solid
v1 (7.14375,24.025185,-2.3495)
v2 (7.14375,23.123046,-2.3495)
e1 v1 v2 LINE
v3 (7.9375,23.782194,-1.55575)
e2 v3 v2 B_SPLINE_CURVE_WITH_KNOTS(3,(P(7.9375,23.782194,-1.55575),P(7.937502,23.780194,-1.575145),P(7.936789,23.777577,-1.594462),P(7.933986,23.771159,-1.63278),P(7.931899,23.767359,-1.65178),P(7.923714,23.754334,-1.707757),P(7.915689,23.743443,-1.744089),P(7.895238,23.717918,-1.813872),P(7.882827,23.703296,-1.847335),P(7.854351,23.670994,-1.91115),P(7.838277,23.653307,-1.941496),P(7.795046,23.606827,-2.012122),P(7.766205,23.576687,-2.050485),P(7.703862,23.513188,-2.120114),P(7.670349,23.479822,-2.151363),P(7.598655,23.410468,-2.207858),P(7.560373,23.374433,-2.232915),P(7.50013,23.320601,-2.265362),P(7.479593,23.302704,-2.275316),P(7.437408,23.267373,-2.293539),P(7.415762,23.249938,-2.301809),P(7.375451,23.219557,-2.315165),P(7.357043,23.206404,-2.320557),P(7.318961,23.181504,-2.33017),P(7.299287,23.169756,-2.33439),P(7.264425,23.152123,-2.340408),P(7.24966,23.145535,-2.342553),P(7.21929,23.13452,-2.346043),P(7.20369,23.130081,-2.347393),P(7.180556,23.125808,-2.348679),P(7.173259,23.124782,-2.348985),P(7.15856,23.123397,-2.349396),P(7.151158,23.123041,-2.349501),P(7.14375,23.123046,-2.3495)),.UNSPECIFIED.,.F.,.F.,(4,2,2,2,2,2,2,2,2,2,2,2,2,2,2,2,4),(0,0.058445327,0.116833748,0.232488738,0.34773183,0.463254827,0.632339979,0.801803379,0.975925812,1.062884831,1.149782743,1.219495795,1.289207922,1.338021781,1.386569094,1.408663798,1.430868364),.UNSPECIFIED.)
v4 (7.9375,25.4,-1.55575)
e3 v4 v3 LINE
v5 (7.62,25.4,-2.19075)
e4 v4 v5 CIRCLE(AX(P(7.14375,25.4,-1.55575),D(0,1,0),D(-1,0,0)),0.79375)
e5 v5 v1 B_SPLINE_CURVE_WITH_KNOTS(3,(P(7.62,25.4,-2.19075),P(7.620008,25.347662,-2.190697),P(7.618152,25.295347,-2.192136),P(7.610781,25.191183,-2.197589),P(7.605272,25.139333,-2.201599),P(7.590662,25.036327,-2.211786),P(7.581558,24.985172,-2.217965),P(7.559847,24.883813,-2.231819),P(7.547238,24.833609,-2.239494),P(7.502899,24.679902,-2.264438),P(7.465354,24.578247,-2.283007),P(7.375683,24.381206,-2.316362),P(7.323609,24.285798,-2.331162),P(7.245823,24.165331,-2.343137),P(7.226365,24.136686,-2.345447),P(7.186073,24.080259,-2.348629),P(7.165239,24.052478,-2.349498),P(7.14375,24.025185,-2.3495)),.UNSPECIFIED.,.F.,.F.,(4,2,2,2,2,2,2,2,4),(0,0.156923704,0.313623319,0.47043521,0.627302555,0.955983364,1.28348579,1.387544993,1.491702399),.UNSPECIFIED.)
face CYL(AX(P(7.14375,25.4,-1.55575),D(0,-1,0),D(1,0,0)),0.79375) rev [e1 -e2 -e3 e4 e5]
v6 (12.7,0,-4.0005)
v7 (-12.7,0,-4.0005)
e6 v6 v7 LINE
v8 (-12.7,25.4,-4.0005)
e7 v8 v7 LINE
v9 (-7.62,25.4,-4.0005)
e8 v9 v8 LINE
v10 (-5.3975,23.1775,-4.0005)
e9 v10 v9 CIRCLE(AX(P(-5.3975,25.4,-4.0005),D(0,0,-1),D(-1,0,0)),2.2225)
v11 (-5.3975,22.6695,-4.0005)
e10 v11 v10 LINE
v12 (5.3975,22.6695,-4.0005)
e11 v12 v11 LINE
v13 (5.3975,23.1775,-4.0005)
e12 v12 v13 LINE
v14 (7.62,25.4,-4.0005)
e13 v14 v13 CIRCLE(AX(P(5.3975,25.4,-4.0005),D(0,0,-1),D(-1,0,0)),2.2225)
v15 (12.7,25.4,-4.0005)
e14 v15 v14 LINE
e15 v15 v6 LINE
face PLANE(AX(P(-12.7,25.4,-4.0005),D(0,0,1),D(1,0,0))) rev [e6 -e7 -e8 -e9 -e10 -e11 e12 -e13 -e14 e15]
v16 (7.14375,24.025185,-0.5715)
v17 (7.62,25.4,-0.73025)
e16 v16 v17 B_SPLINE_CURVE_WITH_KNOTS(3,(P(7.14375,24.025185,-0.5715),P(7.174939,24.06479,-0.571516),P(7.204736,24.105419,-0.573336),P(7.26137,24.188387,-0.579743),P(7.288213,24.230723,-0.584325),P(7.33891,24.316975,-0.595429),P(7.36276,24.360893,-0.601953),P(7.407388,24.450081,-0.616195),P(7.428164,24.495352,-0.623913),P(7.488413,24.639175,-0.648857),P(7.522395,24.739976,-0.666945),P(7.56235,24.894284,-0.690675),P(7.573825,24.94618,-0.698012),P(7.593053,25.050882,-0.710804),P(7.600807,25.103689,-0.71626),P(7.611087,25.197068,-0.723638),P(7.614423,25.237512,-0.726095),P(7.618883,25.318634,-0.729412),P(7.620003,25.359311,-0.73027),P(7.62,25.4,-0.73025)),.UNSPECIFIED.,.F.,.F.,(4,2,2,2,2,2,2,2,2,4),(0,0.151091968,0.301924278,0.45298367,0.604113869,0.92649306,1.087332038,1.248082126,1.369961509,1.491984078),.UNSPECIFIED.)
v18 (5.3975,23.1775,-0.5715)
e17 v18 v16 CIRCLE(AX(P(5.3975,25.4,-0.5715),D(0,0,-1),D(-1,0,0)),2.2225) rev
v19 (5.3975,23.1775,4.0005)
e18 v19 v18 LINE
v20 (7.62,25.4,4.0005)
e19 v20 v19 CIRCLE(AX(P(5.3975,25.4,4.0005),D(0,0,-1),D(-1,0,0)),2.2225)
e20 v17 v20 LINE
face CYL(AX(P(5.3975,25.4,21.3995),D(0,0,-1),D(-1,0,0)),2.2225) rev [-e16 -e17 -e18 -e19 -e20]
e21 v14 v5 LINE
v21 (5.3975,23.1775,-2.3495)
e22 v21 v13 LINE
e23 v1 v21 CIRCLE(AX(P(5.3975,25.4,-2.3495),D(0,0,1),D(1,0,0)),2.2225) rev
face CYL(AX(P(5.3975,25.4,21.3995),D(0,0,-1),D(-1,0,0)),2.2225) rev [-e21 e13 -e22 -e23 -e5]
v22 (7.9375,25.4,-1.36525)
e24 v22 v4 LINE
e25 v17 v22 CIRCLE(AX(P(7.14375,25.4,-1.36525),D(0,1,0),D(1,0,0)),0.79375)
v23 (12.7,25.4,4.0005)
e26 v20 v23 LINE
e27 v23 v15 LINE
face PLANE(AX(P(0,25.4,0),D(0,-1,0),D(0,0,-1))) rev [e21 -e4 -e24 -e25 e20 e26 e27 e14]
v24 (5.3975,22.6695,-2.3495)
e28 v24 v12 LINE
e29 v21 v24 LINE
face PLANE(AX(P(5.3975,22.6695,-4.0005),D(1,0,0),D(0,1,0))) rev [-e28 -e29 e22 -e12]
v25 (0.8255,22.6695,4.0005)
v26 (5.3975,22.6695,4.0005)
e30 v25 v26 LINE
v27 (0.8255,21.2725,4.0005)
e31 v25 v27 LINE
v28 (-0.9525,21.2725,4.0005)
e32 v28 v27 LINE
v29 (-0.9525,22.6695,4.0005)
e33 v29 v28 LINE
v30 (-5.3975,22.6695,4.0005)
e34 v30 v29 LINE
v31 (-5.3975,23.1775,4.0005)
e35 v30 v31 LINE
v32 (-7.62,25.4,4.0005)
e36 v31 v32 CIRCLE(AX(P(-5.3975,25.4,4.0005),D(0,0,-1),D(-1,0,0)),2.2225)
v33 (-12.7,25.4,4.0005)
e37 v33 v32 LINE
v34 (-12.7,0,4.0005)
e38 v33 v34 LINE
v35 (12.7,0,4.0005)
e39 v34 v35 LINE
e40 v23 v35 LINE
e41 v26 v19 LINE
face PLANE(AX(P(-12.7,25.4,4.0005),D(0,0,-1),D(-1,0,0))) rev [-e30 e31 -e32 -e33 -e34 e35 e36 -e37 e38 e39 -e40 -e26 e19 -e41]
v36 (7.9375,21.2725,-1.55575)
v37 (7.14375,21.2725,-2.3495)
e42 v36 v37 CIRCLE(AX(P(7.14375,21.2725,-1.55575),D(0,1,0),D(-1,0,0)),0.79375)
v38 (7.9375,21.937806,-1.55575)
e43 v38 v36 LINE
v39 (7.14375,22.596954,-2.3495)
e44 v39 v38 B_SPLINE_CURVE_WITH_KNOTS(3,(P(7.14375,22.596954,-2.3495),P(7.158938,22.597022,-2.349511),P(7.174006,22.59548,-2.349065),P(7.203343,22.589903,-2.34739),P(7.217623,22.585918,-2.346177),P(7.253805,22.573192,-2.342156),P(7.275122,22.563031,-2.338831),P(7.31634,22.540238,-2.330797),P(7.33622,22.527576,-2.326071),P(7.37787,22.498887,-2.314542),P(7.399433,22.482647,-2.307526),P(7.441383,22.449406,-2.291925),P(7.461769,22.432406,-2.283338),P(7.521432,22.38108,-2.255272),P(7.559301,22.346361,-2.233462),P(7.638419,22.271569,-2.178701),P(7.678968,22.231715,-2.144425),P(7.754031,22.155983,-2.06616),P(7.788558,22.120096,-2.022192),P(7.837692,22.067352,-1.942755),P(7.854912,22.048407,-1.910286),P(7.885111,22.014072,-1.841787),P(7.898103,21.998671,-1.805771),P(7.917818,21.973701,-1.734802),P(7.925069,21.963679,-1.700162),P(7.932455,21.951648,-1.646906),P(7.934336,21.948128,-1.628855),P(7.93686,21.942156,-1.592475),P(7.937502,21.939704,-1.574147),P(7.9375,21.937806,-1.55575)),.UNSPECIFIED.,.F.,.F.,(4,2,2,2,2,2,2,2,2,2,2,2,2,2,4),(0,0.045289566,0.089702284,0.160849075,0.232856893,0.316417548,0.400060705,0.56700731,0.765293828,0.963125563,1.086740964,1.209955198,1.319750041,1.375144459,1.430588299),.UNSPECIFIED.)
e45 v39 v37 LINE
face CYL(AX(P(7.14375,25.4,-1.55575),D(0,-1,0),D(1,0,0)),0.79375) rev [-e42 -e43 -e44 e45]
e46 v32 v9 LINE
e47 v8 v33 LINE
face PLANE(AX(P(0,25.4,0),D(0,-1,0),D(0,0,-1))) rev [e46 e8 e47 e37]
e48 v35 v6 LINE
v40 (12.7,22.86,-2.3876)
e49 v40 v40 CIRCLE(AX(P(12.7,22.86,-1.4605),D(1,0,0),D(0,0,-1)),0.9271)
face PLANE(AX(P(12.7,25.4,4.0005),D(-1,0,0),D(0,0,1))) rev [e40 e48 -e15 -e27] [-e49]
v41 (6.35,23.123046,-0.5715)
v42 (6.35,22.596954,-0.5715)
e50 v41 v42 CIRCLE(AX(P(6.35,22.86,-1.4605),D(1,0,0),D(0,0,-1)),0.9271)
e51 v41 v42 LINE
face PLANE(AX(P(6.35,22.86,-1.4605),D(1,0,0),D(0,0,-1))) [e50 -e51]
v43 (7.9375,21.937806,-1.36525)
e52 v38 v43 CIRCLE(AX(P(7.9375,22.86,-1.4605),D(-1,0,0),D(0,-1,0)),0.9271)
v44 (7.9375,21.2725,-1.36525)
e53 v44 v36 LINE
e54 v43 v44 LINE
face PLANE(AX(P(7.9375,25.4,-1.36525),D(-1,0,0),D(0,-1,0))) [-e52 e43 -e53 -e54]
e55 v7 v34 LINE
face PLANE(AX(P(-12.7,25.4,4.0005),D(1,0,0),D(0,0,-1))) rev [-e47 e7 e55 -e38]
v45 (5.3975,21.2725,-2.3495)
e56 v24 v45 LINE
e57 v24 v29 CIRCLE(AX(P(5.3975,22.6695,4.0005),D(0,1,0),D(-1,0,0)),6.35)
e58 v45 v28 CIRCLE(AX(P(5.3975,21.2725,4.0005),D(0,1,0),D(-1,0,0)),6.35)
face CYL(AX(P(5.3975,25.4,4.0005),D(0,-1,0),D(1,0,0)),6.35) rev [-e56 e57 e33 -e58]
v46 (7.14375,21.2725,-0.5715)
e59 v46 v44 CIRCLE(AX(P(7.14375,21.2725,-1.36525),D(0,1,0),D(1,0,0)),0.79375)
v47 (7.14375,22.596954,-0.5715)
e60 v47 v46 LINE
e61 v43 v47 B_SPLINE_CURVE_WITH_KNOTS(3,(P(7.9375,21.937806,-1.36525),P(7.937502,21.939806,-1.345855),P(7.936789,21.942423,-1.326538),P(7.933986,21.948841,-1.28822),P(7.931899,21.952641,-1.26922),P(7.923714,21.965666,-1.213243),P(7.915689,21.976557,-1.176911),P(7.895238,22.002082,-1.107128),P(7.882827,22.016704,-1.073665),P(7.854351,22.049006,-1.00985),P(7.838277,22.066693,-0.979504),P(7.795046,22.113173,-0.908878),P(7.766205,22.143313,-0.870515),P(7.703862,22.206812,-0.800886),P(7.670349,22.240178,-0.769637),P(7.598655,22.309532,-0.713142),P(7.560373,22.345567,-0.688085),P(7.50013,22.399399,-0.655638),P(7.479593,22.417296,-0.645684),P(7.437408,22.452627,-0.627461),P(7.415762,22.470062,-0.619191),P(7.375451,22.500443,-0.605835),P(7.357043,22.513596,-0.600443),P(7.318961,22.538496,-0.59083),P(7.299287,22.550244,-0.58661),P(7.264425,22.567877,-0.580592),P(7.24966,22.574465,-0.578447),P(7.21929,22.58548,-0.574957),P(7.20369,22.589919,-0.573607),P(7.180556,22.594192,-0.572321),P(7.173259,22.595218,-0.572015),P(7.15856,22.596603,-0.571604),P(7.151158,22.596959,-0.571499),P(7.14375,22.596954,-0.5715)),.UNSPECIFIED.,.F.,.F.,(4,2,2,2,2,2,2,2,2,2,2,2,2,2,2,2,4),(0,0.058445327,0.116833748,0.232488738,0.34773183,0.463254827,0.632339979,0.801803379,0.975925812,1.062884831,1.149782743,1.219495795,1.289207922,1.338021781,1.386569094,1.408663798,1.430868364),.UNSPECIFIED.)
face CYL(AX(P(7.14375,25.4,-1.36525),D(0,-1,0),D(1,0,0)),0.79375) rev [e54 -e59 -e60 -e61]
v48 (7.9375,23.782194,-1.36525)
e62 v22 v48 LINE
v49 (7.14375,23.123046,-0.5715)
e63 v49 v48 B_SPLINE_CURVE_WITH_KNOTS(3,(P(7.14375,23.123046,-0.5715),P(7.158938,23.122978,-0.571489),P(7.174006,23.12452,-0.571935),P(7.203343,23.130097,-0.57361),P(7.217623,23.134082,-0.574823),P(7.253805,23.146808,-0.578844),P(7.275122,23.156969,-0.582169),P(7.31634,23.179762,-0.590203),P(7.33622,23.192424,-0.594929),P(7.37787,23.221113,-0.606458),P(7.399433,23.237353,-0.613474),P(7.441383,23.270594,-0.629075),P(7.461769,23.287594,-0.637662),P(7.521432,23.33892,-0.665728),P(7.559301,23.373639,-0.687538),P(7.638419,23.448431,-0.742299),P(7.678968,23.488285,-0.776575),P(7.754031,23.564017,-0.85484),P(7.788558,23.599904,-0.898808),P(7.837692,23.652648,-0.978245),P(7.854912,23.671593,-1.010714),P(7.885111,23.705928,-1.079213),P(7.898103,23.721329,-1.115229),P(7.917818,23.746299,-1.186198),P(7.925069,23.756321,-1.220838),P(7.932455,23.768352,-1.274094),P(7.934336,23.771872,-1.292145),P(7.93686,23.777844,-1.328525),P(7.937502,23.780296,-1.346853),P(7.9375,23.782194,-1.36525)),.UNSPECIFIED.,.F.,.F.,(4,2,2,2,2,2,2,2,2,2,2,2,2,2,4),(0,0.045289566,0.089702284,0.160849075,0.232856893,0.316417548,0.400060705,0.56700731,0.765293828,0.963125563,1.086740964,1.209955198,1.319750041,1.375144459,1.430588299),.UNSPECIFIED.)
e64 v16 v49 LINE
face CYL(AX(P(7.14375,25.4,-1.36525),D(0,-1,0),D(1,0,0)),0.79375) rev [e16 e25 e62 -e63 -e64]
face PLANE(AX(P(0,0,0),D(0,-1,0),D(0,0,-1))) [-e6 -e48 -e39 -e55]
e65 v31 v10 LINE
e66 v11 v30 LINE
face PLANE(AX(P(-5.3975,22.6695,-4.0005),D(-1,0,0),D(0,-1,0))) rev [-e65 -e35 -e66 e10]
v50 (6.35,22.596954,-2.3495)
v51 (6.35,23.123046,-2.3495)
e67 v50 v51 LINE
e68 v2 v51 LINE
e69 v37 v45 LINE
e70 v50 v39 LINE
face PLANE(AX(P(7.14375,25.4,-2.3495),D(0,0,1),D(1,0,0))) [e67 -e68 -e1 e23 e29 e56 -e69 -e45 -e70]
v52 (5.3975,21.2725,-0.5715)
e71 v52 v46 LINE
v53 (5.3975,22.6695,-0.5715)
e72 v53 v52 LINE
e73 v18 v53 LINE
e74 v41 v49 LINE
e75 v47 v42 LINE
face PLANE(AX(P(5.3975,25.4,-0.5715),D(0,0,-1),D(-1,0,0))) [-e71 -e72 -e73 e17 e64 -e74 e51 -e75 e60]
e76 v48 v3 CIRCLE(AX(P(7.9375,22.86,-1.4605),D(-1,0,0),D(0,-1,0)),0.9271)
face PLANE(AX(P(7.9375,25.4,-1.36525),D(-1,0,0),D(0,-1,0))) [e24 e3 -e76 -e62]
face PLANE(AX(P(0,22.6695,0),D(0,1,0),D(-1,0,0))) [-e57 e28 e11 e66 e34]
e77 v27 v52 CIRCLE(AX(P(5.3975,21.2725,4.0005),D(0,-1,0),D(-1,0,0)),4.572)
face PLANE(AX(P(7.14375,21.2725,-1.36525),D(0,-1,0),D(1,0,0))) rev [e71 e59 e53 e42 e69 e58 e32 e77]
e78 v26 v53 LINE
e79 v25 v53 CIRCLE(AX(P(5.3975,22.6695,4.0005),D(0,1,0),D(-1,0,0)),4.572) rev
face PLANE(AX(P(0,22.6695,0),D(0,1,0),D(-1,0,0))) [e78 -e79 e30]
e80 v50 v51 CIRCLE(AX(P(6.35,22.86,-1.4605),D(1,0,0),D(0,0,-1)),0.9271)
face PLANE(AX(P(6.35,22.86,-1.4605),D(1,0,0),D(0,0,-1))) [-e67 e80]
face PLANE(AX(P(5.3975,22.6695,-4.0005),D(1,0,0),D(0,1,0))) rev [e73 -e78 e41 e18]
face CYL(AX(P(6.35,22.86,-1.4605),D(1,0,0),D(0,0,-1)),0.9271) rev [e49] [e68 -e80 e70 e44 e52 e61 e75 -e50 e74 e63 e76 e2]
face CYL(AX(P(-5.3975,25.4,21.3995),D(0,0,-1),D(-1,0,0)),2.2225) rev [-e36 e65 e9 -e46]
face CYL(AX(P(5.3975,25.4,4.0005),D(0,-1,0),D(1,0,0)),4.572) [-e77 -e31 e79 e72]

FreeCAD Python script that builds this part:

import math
import FreeCAD as App
import Part
import Sketcher
from FreeCAD import Vector
Q = App.Units.Quantity


def add_polygon(sketch, points):
    """Adds a closed chain of lines whose ends are joined by coincident constraints."""
    first, n = sketch.GeometryCount, len(points)
    for a, b in zip(points, points[1:] + points[:1]):
        sketch.addGeometry(Part.LineSegment(App.Vector(*a, 0), App.Vector(*b, 0)), False)
    for i in range(n):
        sketch.addConstraint(Sketcher.Constraint("Coincident", first + i, 2, first + (i + 1) % n, 1))

doc = App.newDocument("Part")
params = doc.addObject("Spreadsheet::Sheet", "Params")
for row, (alias, value) in enumerate([
    ("sketch1_width", "1 in"),
    ("sketch1_height", "0.315 in"),
    ("pad1_length", "1 in"),
    ("sketch2_width", "0.425 in"),
    ("pocket1_length", "1 in"),
    ("sketch3_radius", "0.18 in"),
    ("sketch3_radius2", "0.25 in"),
    ("sketch3_radius3", "0.03125 in"),
    ("pocket2_length", "27.729955 mm"),
    ("pocket2_length2", "0.075 in"),
    ("sketch4_diameter", "0.073 in"),
    ("pocket3_length", "0.25 in"),
    ("sketch5_width", "0.425 in"),
    ("sketch5_height", "0.315 in"),
    ("pocket4_length", "0.02 in"),
], start=1):
    params.set(f"A{row}", alias)
    params.set(f"B{row}", "=" + value)
    params.setAlias(f"B{row}", alias)

body = doc.addObject("PartDesign::Body", "Body")

sketch1 = body.newObject("Sketcher::SketchObject", "Sketch")
sketch1.AttachmentSupport = (doc.getObject("XZ_Plane"), [""])
sketch1.MapMode = "FlatFace"
add_polygon(sketch1, [(-13, -4), (-13, 4), (13, 4), (13, -4)])
sketch1.addConstraint(Sketcher.Constraint("Vertical", 0))
sketch1.addConstraint(Sketcher.Constraint("Horizontal", 1))
sketch1.addConstraint(Sketcher.Constraint("Vertical", 2))
sketch1.addConstraint(Sketcher.Constraint("Horizontal", 3))
sketch1.addConstraint(Sketcher.Constraint("Symmetric", 0, 2, 2, 2, -1, 1))
sketch1.addConstraint(Sketcher.Constraint("DistanceX", 1, 1, 1, 2, Q("1 in")))
sketch1.addConstraint(Sketcher.Constraint("DistanceY", 0, 1, 0, 2, Q("0.315 in")))
sketch1.setExpression("Constraints[9]", "Params.sketch1_width")
sketch1.setExpression("Constraints[10]", "Params.sketch1_height")
pad1 = body.newObject("PartDesign::Pad", "Pad")
pad1.Profile = sketch1
pad1.setExpression("Length", "Params.pad1_length")
pad1.Reversed = True

sketch2 = body.newObject("Sketcher::SketchObject", "Sketch001")
sketch2.AttachmentSupport = (doc.getObject("XY_Plane"), [""])
sketch2.MapMode = "FlatFace"
sketch2.AttachmentOffset = App.Placement(Vector(0, 0, -0.1575 * 25.4), App.Rotation())
sketch2.addGeometry(Part.LineSegment(Vector(5.4, 23.2, 0), Vector(-5.4, 23.2, 0)), False)
sketch2.addGeometry(Part.ArcOfCircle(Part.Circle(Vector(-5.4, 25.4, 0), Vector(0, 0, 1), 2.2), math.radians(90), math.radians(270)), False)
sketch2.addGeometry(Part.LineSegment(Vector(-5.4, 27.6, 0), Vector(5.4, 27.6, 0)), False)
sketch2.addGeometry(Part.ArcOfCircle(Part.Circle(Vector(5.4, 25.4, 0), Vector(0, 0, 1), 2.2), math.radians(-90), math.radians(90)), False)
sketch2.addConstraint(Sketcher.Constraint("Tangent", 0, 2, 1, 2))
sketch2.addConstraint(Sketcher.Constraint("Tangent", 1, 1, 2, 1))
sketch2.addConstraint(Sketcher.Constraint("Tangent", 2, 2, 3, 2))
sketch2.addConstraint(Sketcher.Constraint("Tangent", 3, 1, 0, 1))
sketch2.addConstraint(Sketcher.Constraint("Horizontal", 0))
sketch2.addConstraint(Sketcher.Constraint("Horizontal", 2))
sketch2.addConstraint(Sketcher.Constraint("DistanceY", -1, 1, 1, 3, Q("1 in")))
sketch2.addConstraint(Sketcher.Constraint("Radius", 1, Q("0.0875 in")))
sketch2.addConstraint(Sketcher.Constraint("DistanceX", 0, 2, 0, 1, Q("0.425 in")))
sketch2.addConstraint(Sketcher.Constraint("DistanceX", 1, 3, -1, 1, Q("0.2125 in")))
sketch2.setExpression("Constraints[8]", "Params.sketch2_width")
pocket1 = body.newObject("PartDesign::Pocket", "Pocket")
pocket1.Profile = sketch2
pocket1.setExpression("Length", "Params.pocket1_length")
pocket1.Reversed = True

sketch3 = body.newObject("Sketcher::SketchObject", "Sketch002")
sketch3.AttachmentSupport = (doc.getObject("XZ_Plane"), [""])
sketch3.MapMode = "FlatFace"
sketch3.AttachmentOffset = App.Placement(Vector(0, 0, -0.9125 * 25.4), App.Rotation())
sketch3.addGeometry(Part.LineSegment(Vector(-0.95, 4, 0), Vector(0.83, 4, 0)), False)
sketch3.addGeometry(Part.ArcOfCircle(Part.Circle(Vector(5.4, 4, 0), Vector(0, 0, 1), 4.57), math.radians(180), math.radians(270)), False)
sketch3.addGeometry(Part.LineSegment(Vector(5.4, -0.57, 0), Vector(7.14, -0.57, 0)), False)
sketch3.addGeometry(Part.ArcOfCircle(Part.Circle(Vector(7.14, -1.37, 0), Vector(0, 0, 1), 0.79), math.radians(0), math.radians(90)), False)
sketch3.addGeometry(Part.LineSegment(Vector(7.94, -1.37, 0), Vector(7.94, -1.56, 0)), False)
sketch3.addGeometry(Part.ArcOfCircle(Part.Circle(Vector(7.14, -1.56, 0), Vector(0, 0, 1), 0.79), math.radians(-90), math.radians(0)), False)
sketch3.addGeometry(Part.LineSegment(Vector(7.14, -2.35, 0), Vector(5.4, -2.35, 0)), False)
sketch3.addGeometry(Part.ArcOfCircle(Part.Circle(Vector(5.4, 4, 0), Vector(0, 0, 1), 6.35), math.radians(180), math.radians(270)), False)
sketch3.addConstraint(Sketcher.Constraint("Coincident", 0, 2, 1, 1))
sketch3.addConstraint(Sketcher.Constraint("Tangent", 1, 2, 2, 1))
sketch3.addConstraint(Sketcher.Constraint("Tangent", 2, 2, 3, 2))
sketch3.addConstraint(Sketcher.Constraint("Tangent", 3, 1, 4, 1))
sketch3.addConstraint(Sketcher.Constraint("Tangent", 4, 2, 5, 2))
sketch3.addConstraint(Sketcher.Constraint("Tangent", 5, 1, 6, 1))
sketch3.addConstraint(Sketcher.Constraint("Tangent", 6, 2, 7, 2))
sketch3.addConstraint(Sketcher.Constraint("Coincident", 7, 1, 0, 1))
sketch3.addConstraint(Sketcher.Constraint("Horizontal", 0))
sketch3.addConstraint(Sketcher.Constraint("Horizontal", 2))
sketch3.addConstraint(Sketcher.Constraint("Vertical", 4))
sketch3.addConstraint(Sketcher.Constraint("Horizontal", 6))
sketch3.addConstraint(Sketcher.Constraint("Coincident", 7, 3, 1, 3))
sketch3.addConstraint(Sketcher.Constraint("Equal", 3, 5))
sketch3.addConstraint(Sketcher.Constraint("Horizontal", 7, 3, 0, 2))
sketch3.addConstraint(Sketcher.Constraint("Radius", 1, Q("0.18 in")))
sketch3.addConstraint(Sketcher.Constraint("Radius", 7, Q("0.25 in")))
sketch3.addConstraint(Sketcher.Constraint("Radius", 3, Q("0.03125 in")))
sketch3.addConstraint(Sketcher.Constraint("DistanceX", 1, 2, 3, 1, Q("0.1 in")))
sketch3.addConstraint(Sketcher.Constraint("DistanceX", -1, 1, 3, 3, Q("0.28125 in")))
sketch3.addConstraint(Sketcher.Constraint("DistanceY", -1, 1, 1, 3, Q("0.1575 in")))
sketch3.setExpression("Constraints[15]", "Params.sketch3_radius")
sketch3.setExpression("Constraints[16]", "Params.sketch3_radius2")
sketch3.setExpression("Constraints[17]", "Params.sketch3_radius3")
pocket2 = body.newObject("PartDesign::Pocket", "Pocket001")
pocket2.Profile = sketch3
pocket2.Type = "TwoLengths"
pocket2.setExpression("Length", "Params.pocket2_length")
pocket2.setExpression("Length2", "Params.pocket2_length2")

sketch4 = body.newObject("Sketcher::SketchObject", "Sketch003")
sketch4.AttachmentSupport = (doc.getObject("YZ_Plane"), [""])
sketch4.MapMode = "FlatFace"
sketch4.AttachmentOffset = App.Placement(Vector(0, 0, 0.5 * 25.4), App.Rotation())
sketch4.addGeometry(Part.Circle(Vector(22.9, -1.5, 0), Vector(0, 0, 1), 0.9), False)
sketch4.addConstraint(Sketcher.Constraint("Diameter", 0, Q("0.073 in")))
sketch4.addConstraint(Sketcher.Constraint("DistanceX", -1, 1, 0, 3, Q("0.9 in")))
sketch4.addConstraint(Sketcher.Constraint("DistanceY", 0, 3, -1, 1, Q("0.0575 in")))
sketch4.setExpression("Constraints[0]", "Params.sketch4_diameter")
pocket3 = body.newObject("PartDesign::Pocket", "Pocket002")
pocket3.Profile = sketch4
pocket3.setExpression("Length", "Params.pocket3_length")

sketch5 = body.newObject("Sketcher::SketchObject", "Sketch004")
sketch5.AttachmentSupport = (doc.getObject("XZ_Plane"), [""])
sketch5.MapMode = "FlatFace"
sketch5.AttachmentOffset = App.Placement(Vector(0, 0, -0.9125 * 25.4), App.Rotation())
add_polygon(sketch5, [(-5, -4), (-5, 4), (5, 4), (5, -4)])
sketch5.addConstraint(Sketcher.Constraint("Vertical", 0))
sketch5.addConstraint(Sketcher.Constraint("Horizontal", 1))
sketch5.addConstraint(Sketcher.Constraint("Vertical", 2))
sketch5.addConstraint(Sketcher.Constraint("Horizontal", 3))
sketch5.addConstraint(Sketcher.Constraint("Symmetric", 0, 2, 2, 2, -1, 1))
sketch5.addConstraint(Sketcher.Constraint("DistanceX", 1, 1, 1, 2, Q("0.425 in")))
sketch5.addConstraint(Sketcher.Constraint("DistanceY", 0, 1, 0, 2, Q("0.315 in")))
sketch5.setExpression("Constraints[9]", "Params.sketch5_width")
sketch5.setExpression("Constraints[10]", "Params.sketch5_height")
pocket4 = body.newObject("PartDesign::Pocket", "Pocket003")
pocket4.Profile = sketch5
pocket4.setExpression("Length", "Params.pocket4_length")
pocket4.Reversed = True

doc.recompute()
